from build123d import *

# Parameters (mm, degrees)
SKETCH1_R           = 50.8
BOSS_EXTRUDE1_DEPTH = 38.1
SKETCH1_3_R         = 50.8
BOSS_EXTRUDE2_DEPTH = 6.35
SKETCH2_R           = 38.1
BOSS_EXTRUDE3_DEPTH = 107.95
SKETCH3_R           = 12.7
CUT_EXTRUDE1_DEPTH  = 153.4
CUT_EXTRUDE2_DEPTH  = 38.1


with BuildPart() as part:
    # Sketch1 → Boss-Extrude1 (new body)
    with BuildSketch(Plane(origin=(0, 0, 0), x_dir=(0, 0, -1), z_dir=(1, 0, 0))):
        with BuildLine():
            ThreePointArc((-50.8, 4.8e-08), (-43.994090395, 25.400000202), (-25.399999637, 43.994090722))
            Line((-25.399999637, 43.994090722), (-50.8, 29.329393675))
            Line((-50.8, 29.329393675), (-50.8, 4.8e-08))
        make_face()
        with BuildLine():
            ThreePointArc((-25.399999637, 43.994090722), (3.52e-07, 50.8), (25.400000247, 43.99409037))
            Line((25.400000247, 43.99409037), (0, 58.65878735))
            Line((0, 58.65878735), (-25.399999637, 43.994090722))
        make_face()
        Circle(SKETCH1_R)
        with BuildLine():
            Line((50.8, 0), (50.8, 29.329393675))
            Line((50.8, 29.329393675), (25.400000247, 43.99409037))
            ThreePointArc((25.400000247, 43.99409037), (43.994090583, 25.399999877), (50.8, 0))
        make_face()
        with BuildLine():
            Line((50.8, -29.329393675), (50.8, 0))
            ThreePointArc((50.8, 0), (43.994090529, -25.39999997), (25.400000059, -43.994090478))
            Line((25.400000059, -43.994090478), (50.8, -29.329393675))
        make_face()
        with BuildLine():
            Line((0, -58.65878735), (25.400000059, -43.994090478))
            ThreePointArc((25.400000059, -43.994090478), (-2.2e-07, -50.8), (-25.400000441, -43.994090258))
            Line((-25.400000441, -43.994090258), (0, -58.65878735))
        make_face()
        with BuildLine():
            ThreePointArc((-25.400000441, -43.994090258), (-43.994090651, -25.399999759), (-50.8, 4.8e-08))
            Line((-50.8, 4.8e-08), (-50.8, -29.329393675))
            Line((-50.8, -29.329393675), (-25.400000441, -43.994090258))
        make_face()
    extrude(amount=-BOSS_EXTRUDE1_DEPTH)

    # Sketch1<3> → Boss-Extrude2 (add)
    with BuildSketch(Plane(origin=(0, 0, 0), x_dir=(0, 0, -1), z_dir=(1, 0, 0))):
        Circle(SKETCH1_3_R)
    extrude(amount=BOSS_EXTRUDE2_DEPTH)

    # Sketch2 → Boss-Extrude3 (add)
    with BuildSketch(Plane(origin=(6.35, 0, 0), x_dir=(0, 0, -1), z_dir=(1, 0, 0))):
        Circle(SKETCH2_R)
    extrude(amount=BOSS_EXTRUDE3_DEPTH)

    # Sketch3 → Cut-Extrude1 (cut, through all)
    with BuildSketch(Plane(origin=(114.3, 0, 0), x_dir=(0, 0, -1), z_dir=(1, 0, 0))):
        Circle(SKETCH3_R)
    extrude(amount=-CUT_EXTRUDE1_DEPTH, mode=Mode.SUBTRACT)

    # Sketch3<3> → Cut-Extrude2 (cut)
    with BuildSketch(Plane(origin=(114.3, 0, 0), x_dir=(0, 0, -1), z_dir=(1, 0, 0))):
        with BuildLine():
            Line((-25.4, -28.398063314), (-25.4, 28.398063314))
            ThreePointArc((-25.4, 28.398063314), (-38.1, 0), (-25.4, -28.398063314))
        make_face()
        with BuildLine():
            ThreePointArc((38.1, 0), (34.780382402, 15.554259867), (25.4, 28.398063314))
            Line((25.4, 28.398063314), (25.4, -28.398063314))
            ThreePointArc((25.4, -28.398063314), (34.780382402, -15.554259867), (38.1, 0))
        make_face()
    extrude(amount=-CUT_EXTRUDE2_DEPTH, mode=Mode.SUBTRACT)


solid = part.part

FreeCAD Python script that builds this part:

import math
import FreeCAD as App
import Part
import Sketcher
Q = App.Units.Quantity

doc = App.newDocument("Part")
body = doc.addObject("PartDesign::Body", "Body")

sketch1 = body.newObject("Sketcher::SketchObject", "Sketch")
sketch1.AttachmentSupport = (doc.getObject("YZ_Plane"), [""])
sketch1.MapMode = "FlatFace"
sketch1.addGeometry(Part.LineSegment(App.Vector(43.994091, 25.4, 0), App.Vector(29.329394, 50.8, 0)), False)
sketch1.addGeometry(Part.LineSegment(App.Vector(29.329394, 50.8, 0), App.Vector(-29.329394, 50.8, 0)), False)
sketch1.addGeometry(Part.LineSegment(App.Vector(-29.329394, 50.8, 0), App.Vector(-43.99409, 25.4, 0)), False)
sketch1.addGeometry(Part.LineSegment(App.Vector(-43.99409, 25.4, 0), App.Vector(-58.658787, 0, 0)), False)
sketch1.addGeometry(Part.LineSegment(App.Vector(-58.658787, 0, 0), App.Vector(-43.99409, -25.4, 0)), False)
sketch1.addGeometry(Part.LineSegment(App.Vector(-43.99409, -25.4, 0), App.Vector(-29.329394, -50.8, 0)), False)
sketch1.addGeometry(Part.LineSegment(App.Vector(-29.329394, -50.8, 0), App.Vector(29.329394, -50.8, 0)), False)
sketch1.addGeometry(Part.LineSegment(App.Vector(29.329394, -50.8, 0), App.Vector(43.99409, -25.4, 0)), False)
sketch1.addGeometry(Part.LineSegment(App.Vector(43.99409, -25.4, 0), App.Vector(58.658787, 0, 0)), False)
sketch1.addGeometry(Part.LineSegment(App.Vector(58.658787, 0, 0), App.Vector(43.994091, 25.4, 0)), False)
sketch1.addConstraint(Sketcher.Constraint("Coincident", 0, 2, 1, 1))
sketch1.addConstraint(Sketcher.Constraint("Coincident", 1, 2, 2, 1))
sketch1.addConstraint(Sketcher.Constraint("Coincident", 2, 2, 3, 1))
sketch1.addConstraint(Sketcher.Constraint("Coincident", 3, 2, 4, 1))
sketch1.addConstraint(Sketcher.Constraint("Coincident", 4, 2, 5, 1))
sketch1.addConstraint(Sketcher.Constraint("Coincident", 5, 2, 6, 1))
sketch1.addConstraint(Sketcher.Constraint("Coincident", 6, 2, 7, 1))
sketch1.addConstraint(Sketcher.Constraint("Coincident", 7, 2, 8, 1))
sketch1.addConstraint(Sketcher.Constraint("Coincident", 8, 2, 9, 1))
sketch1.addConstraint(Sketcher.Constraint("Coincident", 9, 2, 0, 1))
sketch1.addConstraint(Sketcher.Constraint("Horizontal", 1))
sketch1.addConstraint(Sketcher.Constraint("Horizontal", 6))
sketch1.addConstraint(Sketcher.Constraint("Symmetric", 0, 2, 5, 2, -1, 1))
sketch1.addConstraint(Sketcher.Constraint("Symmetric", 2, 2, 7, 2, -1, 1))
sketch1.addConstraint(Sketcher.Constraint("Symmetric", 3, 2, 8, 2, -1, 1))
sketch1.addConstraint(Sketcher.Constraint("Symmetric", 4, 2, 9, 2, -1, 1))
sketch1.addConstraint(Sketcher.Constraint("Symmetric", 4, 2, 7, 2, -2))
sketch1.addConstraint(Sketcher.Constraint("PointOnObject", 3, 2, -1))
sketch1.addConstraint(Sketcher.Constraint("Parallel", 2, 3))
sketch1.addConstraint(Sketcher.Constraint("Parallel", 0, 4))
sketch1.addConstraint(Sketcher.Constraint("Parallel", 3, 7))
sketch1.addConstraint(Sketcher.Constraint("Equal", 2, 3))
sketch1.addConstraint(Sketcher.Constraint("DistanceY", -1, 1, 0, 2, Q("2 in")))
sketch1.addConstraint(Sketcher.Constraint("Angle", 0, Q("120 deg")))
sketch1.addConstraint(Sketcher.Constraint("DistanceX", 1, 2, 1, 1, Q("58.658787 mm")))
pad1 = body.newObject("PartDesign::Pad", "Pad")
pad1.Profile = sketch1
pad1.Length = Q("1.5 in")
pad1.Reversed = True

sketch2 = body.newObject("Sketcher::SketchObject", "Sketch001")
sketch2.AttachmentSupport = (doc.getObject("YZ_Plane"), [""])
sketch2.MapMode = "FlatFace"
sketch2.addGeometry(Part.Circle(App.Vector(0, 0, 0), App.Vector(0, 0, 1), 50.8), False)
sketch2.addConstraint(Sketcher.Constraint("Coincident", 0, 3, -1, 1))
sketch2.addConstraint(Sketcher.Constraint("Diameter", 0, Q("4 in")))
pad2 = body.newObject("PartDesign::Pad", "Pad001")
pad2.Profile = sketch2
pad2.Length = Q("0.25 in")

sketch3 = body.newObject("Sketcher::SketchObject", "Sketch002")
sketch3.AttachmentSupport = (doc.getObject("YZ_Plane"), [""])
sketch3.MapMode = "FlatFace"
sketch3.AttachmentOffset = App.Placement(App.Vector(0, 0, 0.25 * 25.4), App.Rotation())
sketch3.addGeometry(Part.Circle(App.Vector(0, 0, 0), App.Vector(0, 0, 1), 38.1), False)
sketch3.addConstraint(Sketcher.Constraint("Coincident", 0, 3, -1, 1))
sketch3.addConstraint(Sketcher.Constraint("Diameter", 0, Q("3 in")))
pad3 = body.newObject("PartDesign::Pad", "Pad002")
pad3.Profile = sketch3
pad3.Length = Q("4.25 in")

sketch4 = body.newObject("Sketcher::SketchObject", "Sketch003")
sketch4.AttachmentSupport = (doc.getObject("YZ_Plane"), [""])
sketch4.MapMode = "FlatFace"
sketch4.AttachmentOffset = App.Placement(App.Vector(0, 0, 4.5 * 25.4), App.Rotation())
sketch4.addGeometry(Part.Circle(App.Vector(0, 0, 0), App.Vector(0, 0, 1), 12.7), False)
sketch4.addConstraint(Sketcher.Constraint("Coincident", 0, 3, -1, 1))
sketch4.addConstraint(Sketcher.Constraint("Diameter", 0, Q("1 in")))
pocket1 = body.newObject("PartDesign::Pocket", "Pocket")
pocket1.Profile = sketch4
pocket1.Type = "ThroughAll"

sketch5 = body.newObject("Sketcher::SketchObject", "Sketch004")
sketch5.AttachmentSupport = (doc.getObject("YZ_Plane"), [""])
sketch5.MapMode = "FlatFace"
sketch5.AttachmentOffset = App.Placement(App.Vector(0, 0, 4.5 * 25.4), App.Rotation())
sketch5.addGeometry(Part.LineSegment(App.Vector(-28.398063, 25.4, 0), App.Vector(28.398063, 25.4, 0)), False)
sketch5.addGeometry(Part.ArcOfCircle(Part.Circle(App.Vector(0, 0, 0), App.Vector(0, 0, 1), 38.1), math.radians(41.810315), math.radians(138.189685)), False)
sketch5.addGeometry(Part.ArcOfCircle(Part.Circle(App.Vector(0, 0, 0), App.Vector(0, 0, 1), 38.1), math.radians(-90), math.radians(-41.810315)), False)
sketch5.addGeometry(Part.LineSegment(App.Vector(28.398063, -25.4, 0), App.Vector(-28.398063, -25.4, 0)), False)
sketch5.addGeometry(Part.ArcOfCircle(Part.Circle(App.Vector(0, 0, 0), App.Vector(0, 0, 1), 38.1), math.radians(-138.189685), math.radians(-90)), False)
sketch5.addConstraint(Sketcher.Constraint("Coincident", 0, 1, 1, 2))
sketch5.addConstraint(Sketcher.Constraint("Coincident", 1, 1, 0, 2))
sketch5.addConstraint(Sketcher.Constraint("Coincident", 2, 2, 3, 1))
sketch5.addConstraint(Sketcher.Constraint("Coincident", 3, 2, 4, 1))
sketch5.addConstraint(Sketcher.Constraint("Tangent", 4, 2, 2, 1))
sketch5.addConstraint(Sketcher.Constraint("Horizontal", 0))
sketch5.addConstraint(Sketcher.Constraint("Horizontal", 3))
sketch5.addConstraint(Sketcher.Constraint("Coincident", 1, 3, -1, 1))
sketch5.addConstraint(Sketcher.Constraint("Coincident", 2, 3, -1, 1))
sketch5.addConstraint(Sketcher.Constraint("Equal", 1, 2))
sketch5.addConstraint(Sketcher.Constraint("Equal", 2, 4))
sketch5.addConstraint(Sketcher.Constraint("PointOnObject", 4, 2, -2))
sketch5.addConstraint(Sketcher.Constraint("Vertical", 1, 1, 2, 2))
sketch5.addConstraint(Sketcher.Constraint("Radius", 1, Q("1.5 in")))
sketch5.addConstraint(Sketcher.Constraint("DistanceY", -1, 1, 0, 1, Q("1 in")))
pocket2 = body.newObject("PartDesign::Pocket", "Pocket001")
pocket2.Profile = sketch5
pocket2.Length = Q("1.5 in")

doc.recompute()
